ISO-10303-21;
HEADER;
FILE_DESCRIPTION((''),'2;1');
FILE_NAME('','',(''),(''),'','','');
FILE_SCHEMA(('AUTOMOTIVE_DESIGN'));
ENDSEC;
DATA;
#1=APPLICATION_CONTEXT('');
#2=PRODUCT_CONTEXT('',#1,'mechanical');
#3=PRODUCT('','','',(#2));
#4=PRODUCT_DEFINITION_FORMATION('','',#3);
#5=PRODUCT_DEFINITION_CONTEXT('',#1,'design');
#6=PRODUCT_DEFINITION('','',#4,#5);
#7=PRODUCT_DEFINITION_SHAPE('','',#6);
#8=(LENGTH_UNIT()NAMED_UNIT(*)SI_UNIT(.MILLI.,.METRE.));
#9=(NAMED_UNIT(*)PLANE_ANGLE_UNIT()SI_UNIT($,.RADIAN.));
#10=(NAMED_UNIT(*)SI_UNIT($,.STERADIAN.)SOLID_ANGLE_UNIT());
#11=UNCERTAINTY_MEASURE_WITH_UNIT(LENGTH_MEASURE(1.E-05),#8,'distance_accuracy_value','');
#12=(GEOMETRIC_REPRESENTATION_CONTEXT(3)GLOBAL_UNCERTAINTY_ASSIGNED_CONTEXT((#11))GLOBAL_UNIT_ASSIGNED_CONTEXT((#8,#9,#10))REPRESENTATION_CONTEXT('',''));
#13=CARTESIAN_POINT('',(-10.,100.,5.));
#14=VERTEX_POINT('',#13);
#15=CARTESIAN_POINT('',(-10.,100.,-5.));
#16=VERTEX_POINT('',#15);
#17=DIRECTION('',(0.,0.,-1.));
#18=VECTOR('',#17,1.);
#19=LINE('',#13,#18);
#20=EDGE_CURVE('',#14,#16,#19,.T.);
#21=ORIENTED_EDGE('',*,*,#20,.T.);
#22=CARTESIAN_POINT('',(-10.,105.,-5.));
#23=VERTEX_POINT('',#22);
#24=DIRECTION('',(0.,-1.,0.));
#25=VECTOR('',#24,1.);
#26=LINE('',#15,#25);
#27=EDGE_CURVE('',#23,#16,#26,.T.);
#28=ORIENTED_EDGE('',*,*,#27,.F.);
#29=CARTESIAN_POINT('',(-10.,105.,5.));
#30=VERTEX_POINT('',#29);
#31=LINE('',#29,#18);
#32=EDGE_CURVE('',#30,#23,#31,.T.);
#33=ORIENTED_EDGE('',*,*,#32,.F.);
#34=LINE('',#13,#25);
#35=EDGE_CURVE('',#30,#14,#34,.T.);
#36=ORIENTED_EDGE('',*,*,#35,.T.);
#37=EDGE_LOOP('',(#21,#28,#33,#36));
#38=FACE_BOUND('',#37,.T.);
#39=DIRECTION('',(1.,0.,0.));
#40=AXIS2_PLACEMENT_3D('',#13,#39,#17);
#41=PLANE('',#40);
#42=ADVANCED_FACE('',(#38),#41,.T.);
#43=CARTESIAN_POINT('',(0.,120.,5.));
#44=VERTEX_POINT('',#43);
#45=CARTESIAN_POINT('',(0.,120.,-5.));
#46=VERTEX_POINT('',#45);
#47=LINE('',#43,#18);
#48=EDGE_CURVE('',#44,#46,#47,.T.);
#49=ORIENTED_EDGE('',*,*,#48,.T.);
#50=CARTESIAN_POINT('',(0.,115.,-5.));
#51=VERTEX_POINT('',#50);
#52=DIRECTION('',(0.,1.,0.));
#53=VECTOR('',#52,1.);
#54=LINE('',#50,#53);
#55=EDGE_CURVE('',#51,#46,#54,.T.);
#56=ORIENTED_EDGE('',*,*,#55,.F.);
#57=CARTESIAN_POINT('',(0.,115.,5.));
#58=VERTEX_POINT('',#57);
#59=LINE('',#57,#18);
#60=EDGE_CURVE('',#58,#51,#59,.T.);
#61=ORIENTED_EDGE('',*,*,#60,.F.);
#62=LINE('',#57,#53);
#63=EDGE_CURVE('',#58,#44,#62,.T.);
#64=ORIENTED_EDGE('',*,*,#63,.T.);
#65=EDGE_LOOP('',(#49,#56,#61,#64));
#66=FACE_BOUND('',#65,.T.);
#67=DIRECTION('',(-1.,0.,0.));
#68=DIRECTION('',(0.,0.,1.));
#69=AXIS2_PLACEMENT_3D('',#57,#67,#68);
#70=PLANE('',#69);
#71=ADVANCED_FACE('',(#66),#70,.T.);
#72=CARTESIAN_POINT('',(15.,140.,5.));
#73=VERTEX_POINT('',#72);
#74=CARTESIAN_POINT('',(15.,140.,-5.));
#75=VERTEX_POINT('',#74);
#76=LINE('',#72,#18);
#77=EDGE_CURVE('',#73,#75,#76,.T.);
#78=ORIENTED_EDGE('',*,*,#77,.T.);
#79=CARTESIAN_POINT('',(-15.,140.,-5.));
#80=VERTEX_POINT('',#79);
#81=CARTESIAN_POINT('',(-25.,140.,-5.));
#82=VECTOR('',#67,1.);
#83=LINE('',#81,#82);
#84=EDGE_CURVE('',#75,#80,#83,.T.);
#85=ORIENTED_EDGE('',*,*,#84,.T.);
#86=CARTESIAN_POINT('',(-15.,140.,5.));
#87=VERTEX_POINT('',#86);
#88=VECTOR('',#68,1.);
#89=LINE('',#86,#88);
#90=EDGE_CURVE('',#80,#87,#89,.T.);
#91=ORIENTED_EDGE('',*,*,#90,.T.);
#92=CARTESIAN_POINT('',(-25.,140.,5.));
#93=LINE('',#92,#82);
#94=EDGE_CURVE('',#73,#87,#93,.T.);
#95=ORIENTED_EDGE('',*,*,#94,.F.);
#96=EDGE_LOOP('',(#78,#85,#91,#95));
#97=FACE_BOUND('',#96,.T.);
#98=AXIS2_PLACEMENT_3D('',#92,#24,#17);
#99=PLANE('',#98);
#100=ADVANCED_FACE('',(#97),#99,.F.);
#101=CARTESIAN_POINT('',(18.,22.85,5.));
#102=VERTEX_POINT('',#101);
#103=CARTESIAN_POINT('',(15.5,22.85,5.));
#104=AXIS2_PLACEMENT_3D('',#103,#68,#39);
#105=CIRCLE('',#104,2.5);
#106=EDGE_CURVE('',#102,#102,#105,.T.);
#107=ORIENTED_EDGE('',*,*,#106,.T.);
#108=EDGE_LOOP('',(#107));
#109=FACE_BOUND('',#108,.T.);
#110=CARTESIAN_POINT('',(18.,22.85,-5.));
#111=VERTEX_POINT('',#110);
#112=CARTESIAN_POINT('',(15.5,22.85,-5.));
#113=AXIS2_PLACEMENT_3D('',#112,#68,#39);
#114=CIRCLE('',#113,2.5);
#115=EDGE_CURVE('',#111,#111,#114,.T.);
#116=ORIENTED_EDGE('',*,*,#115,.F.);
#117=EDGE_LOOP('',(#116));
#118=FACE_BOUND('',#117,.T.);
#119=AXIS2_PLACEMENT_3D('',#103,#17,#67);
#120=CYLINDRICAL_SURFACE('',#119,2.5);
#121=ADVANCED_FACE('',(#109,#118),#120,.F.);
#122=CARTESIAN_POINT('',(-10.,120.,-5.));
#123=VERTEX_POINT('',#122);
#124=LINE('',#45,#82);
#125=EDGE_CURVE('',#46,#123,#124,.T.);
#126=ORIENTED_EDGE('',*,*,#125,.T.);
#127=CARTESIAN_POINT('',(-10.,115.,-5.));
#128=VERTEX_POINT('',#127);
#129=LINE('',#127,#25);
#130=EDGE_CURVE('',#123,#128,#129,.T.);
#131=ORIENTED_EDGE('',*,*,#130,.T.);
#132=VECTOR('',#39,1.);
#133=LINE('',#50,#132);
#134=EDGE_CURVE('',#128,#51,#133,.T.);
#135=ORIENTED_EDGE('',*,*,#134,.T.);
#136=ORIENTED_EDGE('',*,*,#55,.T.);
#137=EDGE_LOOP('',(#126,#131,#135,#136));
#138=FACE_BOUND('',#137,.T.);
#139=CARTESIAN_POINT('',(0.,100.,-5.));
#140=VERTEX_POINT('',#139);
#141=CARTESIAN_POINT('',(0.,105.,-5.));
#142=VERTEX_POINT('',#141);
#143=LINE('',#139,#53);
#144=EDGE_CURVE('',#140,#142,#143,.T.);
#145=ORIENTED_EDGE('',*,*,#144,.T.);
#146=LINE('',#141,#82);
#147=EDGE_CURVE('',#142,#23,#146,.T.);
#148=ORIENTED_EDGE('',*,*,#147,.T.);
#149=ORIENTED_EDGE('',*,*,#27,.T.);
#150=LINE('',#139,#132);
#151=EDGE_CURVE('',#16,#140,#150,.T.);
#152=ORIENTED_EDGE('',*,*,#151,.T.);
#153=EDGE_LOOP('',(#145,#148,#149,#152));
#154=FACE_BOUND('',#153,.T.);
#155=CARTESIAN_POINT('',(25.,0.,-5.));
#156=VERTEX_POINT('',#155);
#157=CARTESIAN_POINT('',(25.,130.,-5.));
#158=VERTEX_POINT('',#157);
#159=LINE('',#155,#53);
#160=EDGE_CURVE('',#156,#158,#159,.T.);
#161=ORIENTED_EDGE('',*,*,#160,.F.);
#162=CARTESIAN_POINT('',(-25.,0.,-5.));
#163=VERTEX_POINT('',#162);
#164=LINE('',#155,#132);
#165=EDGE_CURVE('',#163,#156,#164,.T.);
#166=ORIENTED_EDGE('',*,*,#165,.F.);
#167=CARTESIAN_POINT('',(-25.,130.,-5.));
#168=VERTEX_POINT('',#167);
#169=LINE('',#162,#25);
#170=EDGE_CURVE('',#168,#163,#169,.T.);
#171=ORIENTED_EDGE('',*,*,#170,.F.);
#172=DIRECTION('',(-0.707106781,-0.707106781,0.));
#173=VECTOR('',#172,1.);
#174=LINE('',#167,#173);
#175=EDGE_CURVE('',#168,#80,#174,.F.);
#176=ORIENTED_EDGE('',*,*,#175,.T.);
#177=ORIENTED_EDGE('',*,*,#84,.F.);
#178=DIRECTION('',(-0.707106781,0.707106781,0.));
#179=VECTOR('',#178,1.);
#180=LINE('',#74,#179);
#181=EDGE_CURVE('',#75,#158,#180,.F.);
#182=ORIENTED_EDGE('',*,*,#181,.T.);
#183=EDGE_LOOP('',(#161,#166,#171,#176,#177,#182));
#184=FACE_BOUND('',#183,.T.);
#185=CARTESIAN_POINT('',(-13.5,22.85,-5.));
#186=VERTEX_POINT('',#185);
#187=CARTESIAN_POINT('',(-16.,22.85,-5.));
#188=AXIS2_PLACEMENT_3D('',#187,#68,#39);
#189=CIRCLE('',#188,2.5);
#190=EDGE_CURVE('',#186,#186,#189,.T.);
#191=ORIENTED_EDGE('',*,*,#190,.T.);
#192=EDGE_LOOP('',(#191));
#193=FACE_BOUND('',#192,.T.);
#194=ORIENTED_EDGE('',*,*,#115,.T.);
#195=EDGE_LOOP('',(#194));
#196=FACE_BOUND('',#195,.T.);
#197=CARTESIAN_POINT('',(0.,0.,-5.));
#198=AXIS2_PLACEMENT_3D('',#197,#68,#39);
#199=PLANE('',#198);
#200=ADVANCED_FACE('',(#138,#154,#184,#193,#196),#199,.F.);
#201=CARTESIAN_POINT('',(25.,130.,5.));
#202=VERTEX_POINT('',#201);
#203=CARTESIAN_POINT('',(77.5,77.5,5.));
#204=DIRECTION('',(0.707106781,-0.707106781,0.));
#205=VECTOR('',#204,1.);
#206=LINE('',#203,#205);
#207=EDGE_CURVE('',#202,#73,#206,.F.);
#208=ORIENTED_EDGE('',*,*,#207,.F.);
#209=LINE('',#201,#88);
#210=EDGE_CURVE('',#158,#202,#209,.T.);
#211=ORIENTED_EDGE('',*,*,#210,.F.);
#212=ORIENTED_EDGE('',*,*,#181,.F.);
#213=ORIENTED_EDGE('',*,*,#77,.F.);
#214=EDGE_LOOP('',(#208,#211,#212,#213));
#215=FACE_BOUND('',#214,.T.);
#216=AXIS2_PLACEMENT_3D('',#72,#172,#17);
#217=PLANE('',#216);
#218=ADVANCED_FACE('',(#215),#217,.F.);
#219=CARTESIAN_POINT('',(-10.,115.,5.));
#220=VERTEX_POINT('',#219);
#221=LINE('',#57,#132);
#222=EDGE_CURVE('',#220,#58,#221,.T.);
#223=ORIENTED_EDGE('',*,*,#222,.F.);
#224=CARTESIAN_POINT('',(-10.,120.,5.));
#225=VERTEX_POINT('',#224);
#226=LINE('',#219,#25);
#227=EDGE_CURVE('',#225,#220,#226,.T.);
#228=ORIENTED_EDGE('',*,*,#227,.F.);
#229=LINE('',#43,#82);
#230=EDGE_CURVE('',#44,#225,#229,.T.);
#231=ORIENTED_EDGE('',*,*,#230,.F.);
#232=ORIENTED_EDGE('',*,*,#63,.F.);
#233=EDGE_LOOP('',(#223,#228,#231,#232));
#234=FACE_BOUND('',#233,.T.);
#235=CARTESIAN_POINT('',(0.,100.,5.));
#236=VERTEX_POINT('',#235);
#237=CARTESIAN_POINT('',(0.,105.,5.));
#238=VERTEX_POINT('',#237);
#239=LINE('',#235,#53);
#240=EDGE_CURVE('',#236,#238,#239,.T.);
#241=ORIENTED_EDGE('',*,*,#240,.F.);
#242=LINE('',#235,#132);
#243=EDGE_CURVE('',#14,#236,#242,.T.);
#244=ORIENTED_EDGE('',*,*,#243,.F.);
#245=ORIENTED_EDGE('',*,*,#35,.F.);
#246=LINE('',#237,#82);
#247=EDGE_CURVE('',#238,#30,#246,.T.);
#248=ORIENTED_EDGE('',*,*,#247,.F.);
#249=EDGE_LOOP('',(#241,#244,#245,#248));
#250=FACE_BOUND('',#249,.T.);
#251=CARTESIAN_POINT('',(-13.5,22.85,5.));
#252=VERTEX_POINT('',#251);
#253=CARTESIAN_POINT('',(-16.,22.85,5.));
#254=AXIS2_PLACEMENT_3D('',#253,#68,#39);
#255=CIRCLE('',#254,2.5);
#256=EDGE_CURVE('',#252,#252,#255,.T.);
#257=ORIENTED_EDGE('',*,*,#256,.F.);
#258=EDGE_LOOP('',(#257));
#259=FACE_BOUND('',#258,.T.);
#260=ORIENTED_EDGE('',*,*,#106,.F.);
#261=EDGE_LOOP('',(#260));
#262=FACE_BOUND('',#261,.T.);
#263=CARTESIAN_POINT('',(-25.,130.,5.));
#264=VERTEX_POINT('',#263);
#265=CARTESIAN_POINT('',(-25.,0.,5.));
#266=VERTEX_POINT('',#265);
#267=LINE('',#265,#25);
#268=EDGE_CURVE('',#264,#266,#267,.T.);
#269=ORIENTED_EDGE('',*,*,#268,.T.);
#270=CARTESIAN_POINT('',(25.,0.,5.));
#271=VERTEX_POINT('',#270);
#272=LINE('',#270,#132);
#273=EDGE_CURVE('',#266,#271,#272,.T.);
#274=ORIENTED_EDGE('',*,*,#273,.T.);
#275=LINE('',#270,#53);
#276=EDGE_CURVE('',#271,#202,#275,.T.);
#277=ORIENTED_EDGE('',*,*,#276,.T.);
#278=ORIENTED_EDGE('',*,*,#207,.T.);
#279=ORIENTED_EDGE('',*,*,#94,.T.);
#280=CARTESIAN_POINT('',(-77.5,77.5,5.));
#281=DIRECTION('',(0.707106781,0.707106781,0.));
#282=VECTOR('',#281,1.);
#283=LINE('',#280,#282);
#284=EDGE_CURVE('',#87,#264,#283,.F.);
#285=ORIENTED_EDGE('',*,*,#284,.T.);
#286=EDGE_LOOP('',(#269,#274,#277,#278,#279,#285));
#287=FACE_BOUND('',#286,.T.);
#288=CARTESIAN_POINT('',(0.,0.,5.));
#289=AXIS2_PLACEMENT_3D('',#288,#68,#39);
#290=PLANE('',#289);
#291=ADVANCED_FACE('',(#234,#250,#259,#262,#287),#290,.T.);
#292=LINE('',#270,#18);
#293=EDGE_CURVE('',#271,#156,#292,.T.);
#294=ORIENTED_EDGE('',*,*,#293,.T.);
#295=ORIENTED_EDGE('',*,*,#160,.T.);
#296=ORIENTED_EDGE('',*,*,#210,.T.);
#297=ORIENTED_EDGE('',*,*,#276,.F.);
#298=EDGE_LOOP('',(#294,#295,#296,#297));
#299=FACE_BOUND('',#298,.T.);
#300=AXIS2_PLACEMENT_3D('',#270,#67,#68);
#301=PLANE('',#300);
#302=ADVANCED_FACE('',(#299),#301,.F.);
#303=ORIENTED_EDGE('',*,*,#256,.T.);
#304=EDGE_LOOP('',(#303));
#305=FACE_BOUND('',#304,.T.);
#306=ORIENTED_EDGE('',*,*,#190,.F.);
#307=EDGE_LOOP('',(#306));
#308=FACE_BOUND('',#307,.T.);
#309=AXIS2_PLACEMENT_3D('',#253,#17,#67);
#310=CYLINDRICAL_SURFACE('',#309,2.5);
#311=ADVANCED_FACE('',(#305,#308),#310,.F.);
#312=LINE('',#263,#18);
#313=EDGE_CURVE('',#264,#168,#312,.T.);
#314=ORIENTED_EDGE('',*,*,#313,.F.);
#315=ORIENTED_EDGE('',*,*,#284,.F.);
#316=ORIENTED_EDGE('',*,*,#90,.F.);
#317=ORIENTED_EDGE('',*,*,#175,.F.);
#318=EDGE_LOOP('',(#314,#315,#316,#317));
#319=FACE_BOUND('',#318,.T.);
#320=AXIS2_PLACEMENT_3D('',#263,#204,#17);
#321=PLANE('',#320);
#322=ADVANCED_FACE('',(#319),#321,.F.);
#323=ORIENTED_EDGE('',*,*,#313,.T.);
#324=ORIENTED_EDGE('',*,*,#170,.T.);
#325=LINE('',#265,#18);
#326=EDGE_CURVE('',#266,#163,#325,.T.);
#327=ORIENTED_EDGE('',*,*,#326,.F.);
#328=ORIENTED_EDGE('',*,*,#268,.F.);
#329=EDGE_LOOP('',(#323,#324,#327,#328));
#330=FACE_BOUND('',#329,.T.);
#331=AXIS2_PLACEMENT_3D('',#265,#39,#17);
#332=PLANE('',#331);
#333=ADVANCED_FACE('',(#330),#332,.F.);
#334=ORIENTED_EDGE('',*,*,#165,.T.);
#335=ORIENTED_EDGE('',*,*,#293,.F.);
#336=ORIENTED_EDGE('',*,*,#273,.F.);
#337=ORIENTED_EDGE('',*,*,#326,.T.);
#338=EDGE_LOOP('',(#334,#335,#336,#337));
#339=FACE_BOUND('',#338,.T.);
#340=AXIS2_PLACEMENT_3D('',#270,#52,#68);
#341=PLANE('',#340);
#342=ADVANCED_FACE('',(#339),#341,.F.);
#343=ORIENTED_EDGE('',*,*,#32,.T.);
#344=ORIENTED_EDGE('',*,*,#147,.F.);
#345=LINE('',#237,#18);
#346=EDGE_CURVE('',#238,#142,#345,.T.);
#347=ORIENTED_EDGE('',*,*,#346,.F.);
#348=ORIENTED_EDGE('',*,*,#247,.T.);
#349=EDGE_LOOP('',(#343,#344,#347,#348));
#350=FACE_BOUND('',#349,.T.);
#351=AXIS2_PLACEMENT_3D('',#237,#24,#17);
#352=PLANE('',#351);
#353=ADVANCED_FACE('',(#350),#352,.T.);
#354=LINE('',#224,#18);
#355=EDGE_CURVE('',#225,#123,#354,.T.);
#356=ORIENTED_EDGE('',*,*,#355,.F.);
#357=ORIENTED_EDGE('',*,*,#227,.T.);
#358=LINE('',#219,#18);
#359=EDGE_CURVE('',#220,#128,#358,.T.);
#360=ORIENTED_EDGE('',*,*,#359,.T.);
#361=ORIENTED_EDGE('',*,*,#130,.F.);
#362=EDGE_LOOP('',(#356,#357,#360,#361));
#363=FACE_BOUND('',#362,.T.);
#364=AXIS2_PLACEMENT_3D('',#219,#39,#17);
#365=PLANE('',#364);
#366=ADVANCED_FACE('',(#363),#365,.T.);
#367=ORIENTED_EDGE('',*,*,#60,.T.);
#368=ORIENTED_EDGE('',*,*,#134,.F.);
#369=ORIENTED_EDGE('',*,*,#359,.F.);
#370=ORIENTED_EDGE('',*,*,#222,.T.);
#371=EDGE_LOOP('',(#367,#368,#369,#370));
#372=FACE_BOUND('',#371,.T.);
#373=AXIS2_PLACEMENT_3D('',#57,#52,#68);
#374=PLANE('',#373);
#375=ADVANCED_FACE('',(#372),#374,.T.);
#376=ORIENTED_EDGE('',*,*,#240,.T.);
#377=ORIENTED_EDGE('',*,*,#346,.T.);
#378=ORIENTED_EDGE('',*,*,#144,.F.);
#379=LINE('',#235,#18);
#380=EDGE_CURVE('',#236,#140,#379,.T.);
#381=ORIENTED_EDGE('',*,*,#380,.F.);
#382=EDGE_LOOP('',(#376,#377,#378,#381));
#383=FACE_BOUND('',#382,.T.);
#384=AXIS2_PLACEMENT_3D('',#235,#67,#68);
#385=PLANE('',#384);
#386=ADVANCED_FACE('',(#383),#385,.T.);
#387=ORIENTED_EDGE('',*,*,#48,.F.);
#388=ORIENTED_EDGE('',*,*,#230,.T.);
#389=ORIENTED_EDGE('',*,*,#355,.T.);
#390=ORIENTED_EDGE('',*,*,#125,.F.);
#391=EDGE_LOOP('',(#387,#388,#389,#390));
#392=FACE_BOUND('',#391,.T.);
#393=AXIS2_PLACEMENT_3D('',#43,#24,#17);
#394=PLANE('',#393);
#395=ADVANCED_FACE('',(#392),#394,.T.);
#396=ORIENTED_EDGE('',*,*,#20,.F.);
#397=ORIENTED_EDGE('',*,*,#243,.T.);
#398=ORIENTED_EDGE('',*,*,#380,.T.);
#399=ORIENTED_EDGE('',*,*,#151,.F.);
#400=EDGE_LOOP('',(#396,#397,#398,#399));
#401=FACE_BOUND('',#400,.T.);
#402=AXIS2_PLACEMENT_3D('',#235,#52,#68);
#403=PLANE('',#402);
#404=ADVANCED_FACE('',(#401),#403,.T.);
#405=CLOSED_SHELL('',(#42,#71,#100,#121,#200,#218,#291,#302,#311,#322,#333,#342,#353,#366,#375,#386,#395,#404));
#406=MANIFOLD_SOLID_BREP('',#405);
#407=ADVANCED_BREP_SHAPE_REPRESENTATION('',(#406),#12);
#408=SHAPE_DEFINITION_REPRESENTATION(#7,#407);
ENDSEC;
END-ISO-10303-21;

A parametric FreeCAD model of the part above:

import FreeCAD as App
import Part
import Sketcher


def edges_at(feature, points):
    """Names of the edges that pass closest to the given points."""
    edges = feature.Shape.Edges
    near = lambda p: min(range(len(edges)), key=lambda i: edges[i].distToShape(Part.Vertex(*p))[0])
    return sorted({f"Edge{near(p) + 1}" for p in points})


def add_polygon(sketch, points):
    """Adds a closed chain of lines whose ends are joined by coincident constraints."""
    first, n = sketch.GeometryCount, len(points)
    for a, b in zip(points, points[1:] + points[:1]):
        sketch.addGeometry(Part.LineSegment(App.Vector(*a, 0), App.Vector(*b, 0)), False)
    for i in range(n):
        sketch.addConstraint(Sketcher.Constraint("Coincident", first + i, 2, first + (i + 1) % n, 1))

doc = App.newDocument("Part")
params = doc.addObject("Spreadsheet::Sheet", "Params")
for row, (alias, value) in enumerate([
    ("sketch1_diameter", "5 mm"),
    ("sketch1_width", "50 mm"),
    ("sketch1_width2", "10 mm"),
    ("sketch1_height", "140 mm"),
    ("sketch1_height2", "5 mm"),
    ("pad1_length", "10 mm"),
    ("chamfer_size", "10 mm"),
], start=1):
    params.set(f"A{row}", alias)
    params.set(f"B{row}", "=" + value)
    params.setAlias(f"B{row}", alias)

body = doc.addObject("PartDesign::Body", "Body")

sketch1 = doc.addObject("Sketcher::SketchObject", "Sketch")
body.addObject(sketch1)
sketch1.AttachmentSupport = (doc.XY_Plane, [""])
sketch1.MapMode = "FlatFace"
add_polygon(sketch1, [(-25, 140), (-25, 0), (25, 0), (25, 140)])
sketch1.addGeometry(Part.Circle(App.Vector(-16, 22.9, 0), App.Vector(0, 0, 1), 2.5), False)
sketch1.addGeometry(Part.Circle(App.Vector(15.5, 22.9, 0), App.Vector(0, 0, 1), 2.5), False)
add_polygon(sketch1, [(0, 100), (-10, 100), (-10, 105), (0, 105)])
add_polygon(sketch1, [(0, 115), (-10, 115), (-10, 120), (0, 120)])
sketch1.addConstraint(Sketcher.Constraint("Vertical", 0))
sketch1.addConstraint(Sketcher.Constraint("Horizontal", 1))
sketch1.addConstraint(Sketcher.Constraint("Vertical", 2))
sketch1.addConstraint(Sketcher.Constraint("Horizontal", 3))
sketch1.addConstraint(Sketcher.Constraint("Horizontal", 6))
sketch1.addConstraint(Sketcher.Constraint("Vertical", 7))
sketch1.addConstraint(Sketcher.Constraint("Horizontal", 8))
sketch1.addConstraint(Sketcher.Constraint("Vertical", 9))
sketch1.addConstraint(Sketcher.Constraint("Horizontal", 10))
sketch1.addConstraint(Sketcher.Constraint("Vertical", 11))
sketch1.addConstraint(Sketcher.Constraint("Horizontal", 12))
sketch1.addConstraint(Sketcher.Constraint("Vertical", 13))
sketch1.addConstraint(Sketcher.Constraint("Equal", 4, 5))
sketch1.addConstraint(Sketcher.Constraint("Symmetric", 0, 2, 1, 2, -1, 1))
sketch1.addConstraint(Sketcher.Constraint("PointOnObject", 8, 2, -2))
sketch1.addConstraint(Sketcher.Constraint("PointOnObject", 12, 2, -2))
sketch1.addConstraint(Sketcher.Constraint("Horizontal", 4, 3, 5, 3))
sketch1.addConstraint(Sketcher.Constraint("Vertical", 7, 2, 10, 2))
sketch1.addConstraint(Sketcher.Constraint("Equal", 9, 11))
sketch1.addConstraint(Sketcher.Constraint("Diameter", 4, 5.0))
sketch1.addConstraint(Sketcher.Constraint("DistanceX", 1, 1, 1, 2, 50.0))
sketch1.addConstraint(Sketcher.Constraint("DistanceX", 6, 2, 6, 1, 10.0))
sketch1.addConstraint(Sketcher.Constraint("DistanceY", 0, 2, 0, 1, 140.0))
sketch1.addConstraint(Sketcher.Constraint("DistanceY", 7, 1, 7, 2, 5.0))
sketch1.addConstraint(Sketcher.Constraint("DistanceX", 4, 3, -1, 1, 16.0))
sketch1.addConstraint(Sketcher.Constraint("DistanceY", -1, 1, 6, 2, 100.0))
sketch1.addConstraint(Sketcher.Constraint("DistanceY", -1, 1, 10, 2, 115.0))
sketch1.addConstraint(Sketcher.Constraint("DistanceX", -1, 1, 5, 3, 15.5))
sketch1.addConstraint(Sketcher.Constraint("DistanceY", -1, 1, 4, 3, 22.85))
sketch1.setExpression("Constraints[31]", "Params.sketch1_diameter")
sketch1.setExpression("Constraints[32]", "Params.sketch1_width")
sketch1.setExpression("Constraints[33]", "Params.sketch1_width2")
sketch1.setExpression("Constraints[34]", "Params.sketch1_height")
sketch1.setExpression("Constraints[35]", "Params.sketch1_height2")
pad1 = doc.addObject("PartDesign::Pad", "Pad")
body.addObject(pad1)
pad1.Profile = sketch1
pad1.setExpression("Length", "Params.pad1_length")
pad1.Midplane = True
doc.recompute()

chamfer = doc.addObject("PartDesign::Chamfer", "Chamfer")
body.addObject(chamfer)
chamfer.Base = (pad1, edges_at(pad1, [(25, 140, 0), (-25, 140, 0)]))
chamfer.setExpression("Size", "Params.chamfer_size")

doc.recompute()
